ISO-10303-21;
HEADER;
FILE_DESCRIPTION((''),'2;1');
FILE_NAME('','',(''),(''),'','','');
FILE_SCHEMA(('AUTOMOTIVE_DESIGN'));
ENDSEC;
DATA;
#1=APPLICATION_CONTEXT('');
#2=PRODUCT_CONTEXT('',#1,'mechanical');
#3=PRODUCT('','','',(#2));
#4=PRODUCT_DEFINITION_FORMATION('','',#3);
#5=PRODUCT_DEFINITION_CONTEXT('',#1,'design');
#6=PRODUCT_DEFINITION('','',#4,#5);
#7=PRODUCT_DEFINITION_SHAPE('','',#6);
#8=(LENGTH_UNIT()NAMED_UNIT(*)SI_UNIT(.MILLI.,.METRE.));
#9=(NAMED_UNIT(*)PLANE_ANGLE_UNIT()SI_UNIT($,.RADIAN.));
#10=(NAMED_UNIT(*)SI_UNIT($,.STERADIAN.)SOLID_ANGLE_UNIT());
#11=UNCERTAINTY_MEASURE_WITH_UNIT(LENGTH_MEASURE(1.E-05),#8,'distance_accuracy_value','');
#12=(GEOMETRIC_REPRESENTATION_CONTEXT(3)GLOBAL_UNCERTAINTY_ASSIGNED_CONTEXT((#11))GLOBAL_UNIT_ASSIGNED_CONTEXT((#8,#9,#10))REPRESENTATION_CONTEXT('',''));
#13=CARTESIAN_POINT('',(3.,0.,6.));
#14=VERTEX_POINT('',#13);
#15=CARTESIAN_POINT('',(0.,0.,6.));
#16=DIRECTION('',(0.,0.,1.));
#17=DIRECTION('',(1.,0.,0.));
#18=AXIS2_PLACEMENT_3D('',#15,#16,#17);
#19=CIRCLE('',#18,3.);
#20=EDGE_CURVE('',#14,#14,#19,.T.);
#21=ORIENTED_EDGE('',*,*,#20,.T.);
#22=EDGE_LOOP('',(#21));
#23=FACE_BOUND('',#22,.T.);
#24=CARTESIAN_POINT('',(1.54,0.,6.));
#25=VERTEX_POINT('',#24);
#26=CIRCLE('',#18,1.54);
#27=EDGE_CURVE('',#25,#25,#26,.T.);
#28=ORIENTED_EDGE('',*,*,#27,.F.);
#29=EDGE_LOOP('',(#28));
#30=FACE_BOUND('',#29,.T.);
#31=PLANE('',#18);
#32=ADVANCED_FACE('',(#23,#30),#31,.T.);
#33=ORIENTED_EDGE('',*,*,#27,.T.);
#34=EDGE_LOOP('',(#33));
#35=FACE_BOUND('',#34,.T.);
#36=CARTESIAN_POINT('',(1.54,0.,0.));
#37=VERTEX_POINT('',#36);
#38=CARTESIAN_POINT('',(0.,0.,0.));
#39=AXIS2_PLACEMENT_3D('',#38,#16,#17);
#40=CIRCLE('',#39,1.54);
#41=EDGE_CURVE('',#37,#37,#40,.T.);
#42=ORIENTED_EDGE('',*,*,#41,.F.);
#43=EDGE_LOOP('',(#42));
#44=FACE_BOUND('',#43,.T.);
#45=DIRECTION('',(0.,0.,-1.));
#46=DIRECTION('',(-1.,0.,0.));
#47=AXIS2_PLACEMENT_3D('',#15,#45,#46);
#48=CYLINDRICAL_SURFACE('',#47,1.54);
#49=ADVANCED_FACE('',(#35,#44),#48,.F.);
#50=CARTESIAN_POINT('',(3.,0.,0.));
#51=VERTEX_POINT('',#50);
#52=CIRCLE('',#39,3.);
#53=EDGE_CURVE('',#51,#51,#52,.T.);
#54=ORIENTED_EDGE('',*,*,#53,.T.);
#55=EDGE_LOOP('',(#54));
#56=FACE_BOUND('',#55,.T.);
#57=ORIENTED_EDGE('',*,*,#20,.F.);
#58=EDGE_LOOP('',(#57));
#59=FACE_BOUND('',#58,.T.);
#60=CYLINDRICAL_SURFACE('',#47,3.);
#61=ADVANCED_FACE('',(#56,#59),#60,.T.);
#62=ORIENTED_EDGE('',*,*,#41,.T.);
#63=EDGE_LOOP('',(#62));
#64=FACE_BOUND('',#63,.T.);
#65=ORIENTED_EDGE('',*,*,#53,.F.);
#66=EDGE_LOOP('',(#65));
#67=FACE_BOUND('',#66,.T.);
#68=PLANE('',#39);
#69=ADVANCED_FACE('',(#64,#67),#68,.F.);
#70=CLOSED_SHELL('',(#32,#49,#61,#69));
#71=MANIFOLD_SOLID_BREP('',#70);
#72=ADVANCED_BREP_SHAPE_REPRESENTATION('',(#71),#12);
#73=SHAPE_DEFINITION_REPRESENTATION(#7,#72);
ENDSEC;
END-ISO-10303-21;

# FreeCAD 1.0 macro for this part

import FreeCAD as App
import Part
import Sketcher
Q = App.Units.Quantity

doc = App.newDocument("Part")
params = doc.addObject("Spreadsheet::Sheet", "Params")
for row, (alias, value) in enumerate([
    ("sketch1_diameter", "6 mm"),
    ("sketch1_diameter2", "3.08 mm"),
    ("pad1_length", "6 mm"),
], start=1):
    params.set(f"A{row}", alias)
    params.set(f"B{row}", "=" + value)
    params.setAlias(f"B{row}", alias)

body = doc.addObject("PartDesign::Body", "Body")

sketch1 = doc.addObject("Sketcher::SketchObject", "Sketch")
body.addObject(sketch1)
sketch1.AttachmentSupport = (doc.XY_Plane, [""])
sketch1.MapMode = "FlatFace"
sketch1.addGeometry([
    Part.Circle(App.Vector(0, 0, 0), App.Vector(0, 0, 1), 3),
    Part.Circle(App.Vector(0, 0, 0), App.Vector(0, 0, 1), 1.54),
], False)
sketch1.addConstraint([
    Sketcher.Constraint("Coincident", 0, 3, -1, 1),
    Sketcher.Constraint("Coincident", 1, 3, -1, 1),
    Sketcher.Constraint("Diameter", 0, Q("6 mm")),
    Sketcher.Constraint("Diameter", 1, Q("3.08 mm")),
])
sketch1.setExpression("Constraints[2]", "Params.sketch1_diameter")
sketch1.setExpression("Constraints[3]", "Params.sketch1_diameter2")
pad1 = doc.addObject("PartDesign::Pad", "Pad")
body.addObject(pad1)
pad1.Profile = sketch1
pad1.setExpression("Length", "Params.pad1_length")

doc.recompute()
